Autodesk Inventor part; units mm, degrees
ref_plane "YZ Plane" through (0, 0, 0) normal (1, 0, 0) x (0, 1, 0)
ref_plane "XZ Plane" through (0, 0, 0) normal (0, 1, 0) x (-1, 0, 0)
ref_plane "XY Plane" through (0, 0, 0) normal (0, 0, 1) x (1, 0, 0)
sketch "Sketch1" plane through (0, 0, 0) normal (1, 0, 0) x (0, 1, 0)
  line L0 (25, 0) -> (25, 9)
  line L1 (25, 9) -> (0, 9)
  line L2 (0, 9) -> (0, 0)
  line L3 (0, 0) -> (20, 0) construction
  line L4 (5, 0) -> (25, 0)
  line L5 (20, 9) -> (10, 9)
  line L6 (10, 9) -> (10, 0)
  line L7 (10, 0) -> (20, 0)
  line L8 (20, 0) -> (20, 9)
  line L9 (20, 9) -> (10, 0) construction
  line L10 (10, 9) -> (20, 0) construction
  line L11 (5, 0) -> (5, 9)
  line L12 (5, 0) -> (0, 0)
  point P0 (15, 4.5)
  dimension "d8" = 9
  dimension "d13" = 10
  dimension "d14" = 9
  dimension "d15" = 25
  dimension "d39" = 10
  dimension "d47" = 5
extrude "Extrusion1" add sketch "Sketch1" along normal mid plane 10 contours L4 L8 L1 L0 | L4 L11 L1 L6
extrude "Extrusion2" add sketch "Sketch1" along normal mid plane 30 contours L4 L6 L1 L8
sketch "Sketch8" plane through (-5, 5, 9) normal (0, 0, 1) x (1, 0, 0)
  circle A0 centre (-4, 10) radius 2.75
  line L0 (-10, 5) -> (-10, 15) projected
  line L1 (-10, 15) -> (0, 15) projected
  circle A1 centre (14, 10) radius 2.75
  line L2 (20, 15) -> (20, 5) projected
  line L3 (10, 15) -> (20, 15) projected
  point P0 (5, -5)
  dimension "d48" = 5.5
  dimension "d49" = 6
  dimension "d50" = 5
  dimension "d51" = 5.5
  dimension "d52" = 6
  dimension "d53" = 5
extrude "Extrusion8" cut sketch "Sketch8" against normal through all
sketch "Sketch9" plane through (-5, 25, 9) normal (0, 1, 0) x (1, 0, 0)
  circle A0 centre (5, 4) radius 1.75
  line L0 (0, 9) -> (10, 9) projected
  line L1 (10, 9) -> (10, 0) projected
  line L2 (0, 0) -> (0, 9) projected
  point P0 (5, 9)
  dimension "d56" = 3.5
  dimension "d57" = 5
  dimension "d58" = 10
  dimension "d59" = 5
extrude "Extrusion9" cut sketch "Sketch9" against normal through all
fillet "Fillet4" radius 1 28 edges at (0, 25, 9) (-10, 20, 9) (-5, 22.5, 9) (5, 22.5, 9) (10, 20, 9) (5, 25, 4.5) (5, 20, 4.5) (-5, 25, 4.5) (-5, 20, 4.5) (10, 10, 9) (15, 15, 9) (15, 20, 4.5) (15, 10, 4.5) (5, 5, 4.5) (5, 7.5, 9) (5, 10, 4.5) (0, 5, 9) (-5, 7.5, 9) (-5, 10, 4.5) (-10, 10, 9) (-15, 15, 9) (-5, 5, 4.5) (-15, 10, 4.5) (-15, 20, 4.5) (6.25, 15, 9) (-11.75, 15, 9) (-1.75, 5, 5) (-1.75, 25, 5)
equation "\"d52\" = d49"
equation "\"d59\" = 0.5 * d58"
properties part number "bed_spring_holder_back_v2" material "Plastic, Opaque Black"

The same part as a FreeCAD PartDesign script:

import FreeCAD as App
import Part
import Sketcher
from FreeCAD import Vector


def edges_at(feature, points):
    """Names of the edges that pass closest to the given points."""
    edges = feature.Shape.Edges
    near = lambda p: min(range(len(edges)), key=lambda i: edges[i].distToShape(Part.Vertex(*p))[0])
    return sorted({f"Edge{near(p) + 1}" for p in points})

doc = App.newDocument("Part")
params = doc.addObject("Spreadsheet::Sheet", "Params")
for row, (alias, value) in enumerate([
    ("sketch1_width", "5 mm"),
    ("sketch1_height", "9 mm"),
    ("pad1_length", "10 mm"),
    ("sketch2_width", "10 mm"),
    ("sketch2_height", "9 mm"),
    ("pad2_length", "30 mm"),
    ("sketch3_diameter", "5.5 mm"),
    ("sketch4_diameter", "3.5 mm"),
    ("fillet_radius", "1 mm"),
], start=1):
    params.set(f"A{row}", alias)
    params.set(f"B{row}", "=" + value)
    params.setAlias(f"B{row}", alias)

body = doc.addObject("PartDesign::Body", "Body")
body.AllowCompound = True

# Sketch on YZ plane
sketch1 = body.newObject("Sketcher::SketchObject", "Sketch")
sketch1.AttachmentSupport = (doc.getObject("YZ_Plane"), [""])
sketch1.MapMode = "FlatFace"
sketch1.addGeometry([
    Part.LineSegment(Vector(20, 0, 0), Vector(25, 0, 0)),  # 0
    Part.LineSegment(Vector(25, 0, 0), Vector(25, 9, 0)),  # 1
    Part.LineSegment(Vector(25, 9, 0), Vector(20, 9, 0)),  # 2
    Part.LineSegment(Vector(20, 9, 0), Vector(20, 0, 0)),  # 3
    Part.LineSegment(Vector(5, 0, 0), Vector(10, 0, 0)),  # 4
    Part.LineSegment(Vector(10, 0, 0), Vector(10, 9, 0)),  # 5
    Part.LineSegment(Vector(10, 9, 0), Vector(5, 9, 0)),  # 6
    Part.LineSegment(Vector(5, 9, 0), Vector(5, 0, 0)),  # 7
], False)
sketch1.addConstraint([
    Sketcher.Constraint("Coincident", 0, 2, 1, 1),
    Sketcher.Constraint("Coincident", 1, 2, 2, 1),
    Sketcher.Constraint("Coincident", 2, 2, 3, 1),
    Sketcher.Constraint("Coincident", 3, 2, 0, 1),
    Sketcher.Constraint("Coincident", 4, 2, 5, 1),
    Sketcher.Constraint("Coincident", 5, 2, 6, 1),
    Sketcher.Constraint("Coincident", 6, 2, 7, 1),
    Sketcher.Constraint("Coincident", 7, 2, 4, 1),
    Sketcher.Constraint("Horizontal", 0),
    Sketcher.Constraint("Vertical", 1),
    Sketcher.Constraint("Horizontal", 2),
    Sketcher.Constraint("Vertical", 3),
    Sketcher.Constraint("Horizontal", 4),
    Sketcher.Constraint("Vertical", 5),
    Sketcher.Constraint("Horizontal", 6),
    Sketcher.Constraint("Vertical", 7),
    Sketcher.Constraint("PointOnObject", 0, 2, -1),
    Sketcher.Constraint("PointOnObject", 4, 2, -1),
    Sketcher.Constraint("Horizontal", 2, 2, 5, 2),
    Sketcher.Constraint("Equal", 2, 4),
    Sketcher.Constraint("DistanceX", 0, 1, 0, 2, 5.0),
    Sketcher.Constraint("DistanceY", 1, 1, 1, 2, 9.0),
    Sketcher.Constraint("DistanceX", -1, 1, 0, 2, 25.0),
    Sketcher.Constraint("DistanceX", -1, 1, 4, 2, 10.0),
])
sketch1.setExpression("Constraints[20]", "Params.sketch1_width")
sketch1.setExpression("Constraints[21]", "Params.sketch1_height")
pad1 = body.newObject("PartDesign::Pad", "Pad")
pad1.Profile = sketch1
pad1.setExpression("Length", "Params.pad1_length")
pad1.Midplane = True

# Sketch on YZ plane
sketch2 = body.newObject("Sketcher::SketchObject", "Sketch001")
sketch2.AttachmentSupport = (doc.getObject("YZ_Plane"), [""])
sketch2.MapMode = "FlatFace"
sketch2.addGeometry([
    Part.LineSegment(Vector(10, 0, 0), Vector(20, 0, 0)),
    Part.LineSegment(Vector(20, 0, 0), Vector(20, 9, 0)),
    Part.LineSegment(Vector(20, 9, 0), Vector(10, 9, 0)),
    Part.LineSegment(Vector(10, 9, 0), Vector(10, 0, 0)),
], False)
sketch2.addConstraint([
    Sketcher.Constraint("Coincident", 0, 2, 1, 1),
    Sketcher.Constraint("Coincident", 1, 2, 2, 1),
    Sketcher.Constraint("Coincident", 2, 2, 3, 1),
    Sketcher.Constraint("Coincident", 3, 2, 0, 1),
    Sketcher.Constraint("Horizontal", 0),
    Sketcher.Constraint("Vertical", 1),
    Sketcher.Constraint("Horizontal", 2),
    Sketcher.Constraint("Vertical", 3),
    Sketcher.Constraint("PointOnObject", 0, 2, -1),
    Sketcher.Constraint("DistanceX", 0, 1, 0, 2, 10.0),
    Sketcher.Constraint("DistanceY", 1, 1, 1, 2, 9.0),
    Sketcher.Constraint("DistanceX", -1, 1, 2, 2, 10.0),
])
sketch2.setExpression("Constraints[9]", "Params.sketch2_width")
sketch2.setExpression("Constraints[10]", "Params.sketch2_height")
pad2 = body.newObject("PartDesign::Pad", "Pad001")
pad2.Profile = sketch2
pad2.setExpression("Length", "Params.pad2_length")
pad2.Midplane = True

# Sketch on XY plane
sketch3 = body.newObject("Sketcher::SketchObject", "Sketch002")
sketch3.AttachmentSupport = (doc.getObject("XY_Plane"), [""])
sketch3.MapMode = "FlatFace"
sketch3.AttachmentOffset = App.Placement(Vector(0, 0, 9), App.Rotation())
sketch3.addGeometry([
    Part.Circle(Vector(-9, 15, 0), Vector(0, 0, 1), 2.8),
    Part.Circle(Vector(9, 15, 0), Vector(0, 0, 1), 2.8),
], False)
sketch3.addConstraint([
    Sketcher.Constraint("Equal", 0, 1),
    Sketcher.Constraint("Symmetric", 0, 3, 1, 3, -2),
    Sketcher.Constraint("Diameter", 0, 5.5),
    Sketcher.Constraint("DistanceX", 0, 3, -1, 1, 9.0),
    Sketcher.Constraint("DistanceY", -1, 1, 0, 3, 15.0),
])
sketch3.setExpression("Constraints[2]", "Params.sketch3_diameter")
pocket1 = body.newObject("PartDesign::Pocket", "Pocket")
pocket1.Profile = sketch3
pocket1.Type = "ThroughAll"

# Sketch on XZ plane
sketch4 = body.newObject("Sketcher::SketchObject", "Sketch003")
sketch4.AttachmentSupport = (doc.getObject("XZ_Plane"), [""])
sketch4.MapMode = "FlatFace"
sketch4.AttachmentOffset = App.Placement(Vector(0, 0, -25), App.Rotation())
sketch4.addGeometry(Part.Circle(Vector(0, 5, 0), Vector(0, 0, 1), 1.8), False)
sketch4.addConstraint([
    Sketcher.Constraint("PointOnObject", 0, 3, -2),
    Sketcher.Constraint("Diameter", 0, 3.5),
    Sketcher.Constraint("DistanceY", -1, 1, 0, 3, 5.0),
])
sketch4.setExpression("Constraints[1]", "Params.sketch4_diameter")
pocket2 = body.newObject("PartDesign::Pocket", "Pocket001")
pocket2.Profile = sketch4
pocket2.Type = "ThroughAll"
pocket2.Reversed = True
doc.recompute()

fillet = body.newObject("PartDesign::Fillet", "Fillet")
fillet.Base = (pocket2, edges_at(pocket2, [
    (0, 25, 9),
    (-10, 20, 9),
    (-5, 22.5, 9),
    (5, 22.5, 9),
    (10, 20, 9),
    (5, 25, 4.5),
    (5, 20, 4.5),
    (-5, 25, 4.5),
    (-5, 20, 4.5),
    (10, 10, 9),
    (15, 15, 9),
    (15, 20, 4.5),
    (15, 10, 4.5),
    (5, 5, 4.5),
    (5, 7.5, 9),
    (5, 10, 4.5),
    (0, 5, 9),
    (-5, 7.5, 9),
    (-5, 10, 4.5),
    (-10, 10, 9),
    (-15, 15, 9),
    (-5, 5, 4.5),
    (-15, 10, 4.5),
    (-15, 20, 4.5),
    (6.25, 15, 9),
    (-11.75, 15, 9),
    (-1.75, 5, 5),
    (-1.75, 25, 5),
]))
fillet.setExpression("Radius", "Params.fillet_radius")

doc.recompute()
